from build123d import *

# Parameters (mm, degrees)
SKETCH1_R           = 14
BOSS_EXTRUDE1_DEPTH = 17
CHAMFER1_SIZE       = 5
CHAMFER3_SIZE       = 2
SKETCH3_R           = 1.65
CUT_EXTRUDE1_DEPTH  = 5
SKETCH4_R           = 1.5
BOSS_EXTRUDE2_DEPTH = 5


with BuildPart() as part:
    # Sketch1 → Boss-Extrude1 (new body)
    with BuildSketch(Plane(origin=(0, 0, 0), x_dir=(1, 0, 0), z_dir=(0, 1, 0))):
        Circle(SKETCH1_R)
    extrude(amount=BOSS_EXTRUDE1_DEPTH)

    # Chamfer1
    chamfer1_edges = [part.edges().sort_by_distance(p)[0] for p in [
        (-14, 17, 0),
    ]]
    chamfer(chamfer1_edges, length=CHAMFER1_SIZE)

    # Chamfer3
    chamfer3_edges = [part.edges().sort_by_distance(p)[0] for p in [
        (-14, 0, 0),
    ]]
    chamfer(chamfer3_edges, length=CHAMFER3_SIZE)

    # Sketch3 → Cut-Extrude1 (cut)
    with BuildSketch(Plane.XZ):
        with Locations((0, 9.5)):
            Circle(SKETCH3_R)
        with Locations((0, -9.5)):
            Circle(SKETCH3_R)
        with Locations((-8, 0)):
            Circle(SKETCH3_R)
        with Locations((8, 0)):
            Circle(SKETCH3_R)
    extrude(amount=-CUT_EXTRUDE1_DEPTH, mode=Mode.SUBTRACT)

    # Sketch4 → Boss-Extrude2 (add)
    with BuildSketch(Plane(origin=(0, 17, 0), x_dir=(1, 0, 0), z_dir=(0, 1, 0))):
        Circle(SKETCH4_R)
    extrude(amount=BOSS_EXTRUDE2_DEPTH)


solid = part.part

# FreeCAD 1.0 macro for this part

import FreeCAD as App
import Part
import Sketcher
from FreeCAD import Vector


def edges_at(feature, points):
    """Names of the edges that pass closest to the given points."""
    edges = feature.Shape.Edges
    near = lambda p: min(range(len(edges)), key=lambda i: edges[i].distToShape(Part.Vertex(*p))[0])
    return sorted({f"Edge{near(p) + 1}" for p in points})

doc = App.newDocument("Part")
params = doc.addObject("Spreadsheet::Sheet", "Params")
for row, (alias, value) in enumerate([
    ("sketch1_diameter", "28 mm"),
    ("pad1_length", "17 mm"),
    ("chamfer_size", "5 mm"),
    ("chamfer2_size", "2 mm"),
    ("sketch2_diameter", "3.3 mm"),
    ("pocket1_length", "5 mm"),
    ("sketch3_diameter", "3 mm"),
    ("pad2_length", "5 mm"),
], start=1):
    params.set(f"A{row}", alias)
    params.set(f"B{row}", "=" + value)
    params.setAlias(f"B{row}", alias)

body = doc.addObject("PartDesign::Body", "Body")

# Sketch on XZ plane
sketch1 = body.newObject("Sketcher::SketchObject", "Sketch")
sketch1.AttachmentSupport = (doc.getObject("XZ_Plane"), [""])
sketch1.MapMode = "FlatFace"
sketch1.addGeometry(Part.Circle(Vector(0, 0, 0), Vector(0, 0, 1), 14), False)
sketch1.addConstraint(Sketcher.Constraint("Coincident", 0, 3, -1, 1))
sketch1.addConstraint(Sketcher.Constraint("Diameter", 0, 28.0))
sketch1.setExpression("Constraints[1]", "Params.sketch1_diameter")
pad1 = body.newObject("PartDesign::Pad", "Pad")
pad1.Profile = sketch1
pad1.setExpression("Length", "Params.pad1_length")
pad1.Reversed = True
doc.recompute()

chamfer = body.newObject("PartDesign::Chamfer", "Chamfer")
chamfer.Base = (pad1, edges_at(pad1, [(-14, 17, 0)]))
chamfer.setExpression("Size", "Params.chamfer_size")
doc.recompute()

chamfer2 = body.newObject("PartDesign::Chamfer", "Chamfer001")
chamfer2.Base = (chamfer, edges_at(chamfer, [(-14, 0, 0)]))
chamfer2.setExpression("Size", "Params.chamfer2_size")

# Sketch on XZ plane
sketch2 = body.newObject("Sketcher::SketchObject", "Sketch001")
sketch2.AttachmentSupport = (doc.getObject("XZ_Plane"), [""])
sketch2.MapMode = "FlatFace"
sketch2.addGeometry(Part.Circle(Vector(0, 9.5, 0), Vector(0, 0, 1), 1.6), False)
sketch2.addGeometry(Part.Circle(Vector(0, -9.5, 0), Vector(0, 0, 1), 1.6), False)
sketch2.addGeometry(Part.Circle(Vector(-8, 0, 0), Vector(0, 0, 1), 1.6), False)
sketch2.addGeometry(Part.Circle(Vector(8, 0, 0), Vector(0, 0, 1), 1.6), False)
sketch2.addConstraint(Sketcher.Constraint("Equal", 0, 1))
sketch2.addConstraint(Sketcher.Constraint("Equal", 1, 2))
sketch2.addConstraint(Sketcher.Constraint("Equal", 2, 3))
sketch2.addConstraint(Sketcher.Constraint("Symmetric", 0, 3, 1, 3, -1, 1))
sketch2.addConstraint(Sketcher.Constraint("Symmetric", 2, 3, 3, 3, -1, 1))
sketch2.addConstraint(Sketcher.Constraint("PointOnObject", 0, 3, -2))
sketch2.addConstraint(Sketcher.Constraint("PointOnObject", 2, 3, -1))
sketch2.addConstraint(Sketcher.Constraint("Diameter", 0, 3.3))
sketch2.addConstraint(Sketcher.Constraint("DistanceX", 2, 3, -1, 1, 8.0))
sketch2.addConstraint(Sketcher.Constraint("DistanceY", 1, 3, 0, 3, 19.0))
sketch2.setExpression("Constraints[7]", "Params.sketch2_diameter")
pocket1 = body.newObject("PartDesign::Pocket", "Pocket")
pocket1.Profile = sketch2
pocket1.setExpression("Length", "Params.pocket1_length")

# Sketch on XZ plane
sketch3 = body.newObject("Sketcher::SketchObject", "Sketch002")
sketch3.AttachmentSupport = (doc.getObject("XZ_Plane"), [""])
sketch3.MapMode = "FlatFace"
sketch3.AttachmentOffset = App.Placement(Vector(0, 0, -17), App.Rotation())
sketch3.addGeometry(Part.Circle(Vector(0, 0, 0), Vector(0, 0, 1), 1.5), False)
sketch3.addConstraint(Sketcher.Constraint("Coincident", 0, 3, -1, 1))
sketch3.addConstraint(Sketcher.Constraint("Diameter", 0, 3.0))
sketch3.setExpression("Constraints[1]", "Params.sketch3_diameter")
pad2 = body.newObject("PartDesign::Pad", "Pad001")
pad2.Profile = sketch3
pad2.setExpression("Length", "Params.pad2_length")
pad2.Reversed = True

doc.recompute()
